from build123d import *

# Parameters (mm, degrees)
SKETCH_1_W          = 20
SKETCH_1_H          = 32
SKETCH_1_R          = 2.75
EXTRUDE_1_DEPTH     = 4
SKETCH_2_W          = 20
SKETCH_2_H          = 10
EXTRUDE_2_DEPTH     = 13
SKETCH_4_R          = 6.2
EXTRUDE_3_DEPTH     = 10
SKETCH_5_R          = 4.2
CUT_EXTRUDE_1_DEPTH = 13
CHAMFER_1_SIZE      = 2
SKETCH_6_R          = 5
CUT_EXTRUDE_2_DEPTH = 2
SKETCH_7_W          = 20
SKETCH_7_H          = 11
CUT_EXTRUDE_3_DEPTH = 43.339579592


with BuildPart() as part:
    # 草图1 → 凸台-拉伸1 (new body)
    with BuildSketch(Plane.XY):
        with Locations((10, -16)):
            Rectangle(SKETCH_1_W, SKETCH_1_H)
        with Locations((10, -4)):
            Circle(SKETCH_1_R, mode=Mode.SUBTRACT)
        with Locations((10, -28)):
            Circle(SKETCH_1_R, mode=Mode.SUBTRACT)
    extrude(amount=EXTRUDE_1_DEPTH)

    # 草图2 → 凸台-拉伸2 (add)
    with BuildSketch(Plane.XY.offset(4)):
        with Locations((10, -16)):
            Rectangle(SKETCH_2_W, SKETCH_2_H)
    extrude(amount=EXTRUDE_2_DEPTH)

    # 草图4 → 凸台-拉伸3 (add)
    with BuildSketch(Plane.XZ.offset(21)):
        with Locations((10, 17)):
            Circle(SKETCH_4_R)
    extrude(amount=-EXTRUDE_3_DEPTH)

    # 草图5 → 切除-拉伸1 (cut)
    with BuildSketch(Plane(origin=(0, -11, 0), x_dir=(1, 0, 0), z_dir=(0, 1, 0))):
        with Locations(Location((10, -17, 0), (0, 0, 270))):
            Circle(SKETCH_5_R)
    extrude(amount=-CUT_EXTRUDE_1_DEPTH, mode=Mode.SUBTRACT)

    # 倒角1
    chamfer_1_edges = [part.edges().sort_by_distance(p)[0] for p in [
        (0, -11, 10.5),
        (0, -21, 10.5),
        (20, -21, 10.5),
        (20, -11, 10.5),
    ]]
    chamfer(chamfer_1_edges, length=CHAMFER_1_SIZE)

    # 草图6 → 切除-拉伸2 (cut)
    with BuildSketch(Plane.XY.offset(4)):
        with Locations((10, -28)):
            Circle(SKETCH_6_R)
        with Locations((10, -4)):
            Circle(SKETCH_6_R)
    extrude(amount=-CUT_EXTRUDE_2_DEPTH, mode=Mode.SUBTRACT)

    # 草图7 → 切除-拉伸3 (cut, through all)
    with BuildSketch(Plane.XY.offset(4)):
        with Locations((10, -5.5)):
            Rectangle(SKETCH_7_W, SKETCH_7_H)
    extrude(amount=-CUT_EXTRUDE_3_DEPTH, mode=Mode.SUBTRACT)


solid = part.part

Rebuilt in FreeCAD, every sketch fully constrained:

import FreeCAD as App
import Part
import Sketcher
from FreeCAD import Vector


def edges_at(feature, points):
    """Names of the edges that pass closest to the given points."""
    edges = feature.Shape.Edges
    near = lambda p: min(range(len(edges)), key=lambda i: edges[i].distToShape(Part.Vertex(*p))[0])
    return sorted({f"Edge{near(p) + 1}" for p in points})

doc = App.newDocument("Part")
body = doc.addObject("PartDesign::Body", "Body")

# Sketch on XY plane
sketch1 = body.newObject("Sketcher::SketchObject", "Sketch")
sketch1.AttachmentSupport = (doc.getObject("XY_Plane"), [""])
sketch1.MapMode = "FlatFace"
sketch1.addGeometry(Part.LineSegment(Vector(0, 0, 0), Vector(0, -32, 0)), False)
sketch1.addGeometry(Part.LineSegment(Vector(0, -32, 0), Vector(20, -32, 0)), False)
sketch1.addGeometry(Part.LineSegment(Vector(20, -32, 0), Vector(20, 0, 0)), False)
sketch1.addGeometry(Part.LineSegment(Vector(20, 0, 0), Vector(0, 0, 0)), False)
sketch1.addGeometry(Part.Circle(Vector(10, -28, 0), Vector(0, 0, 1), 2.8), False)
sketch1.addGeometry(Part.Circle(Vector(10, -4, 0), Vector(0, 0, 1), 2.8), False)
sketch1.addConstraint(Sketcher.Constraint("Coincident", 0, 2, 1, 1))
sketch1.addConstraint(Sketcher.Constraint("Coincident", 1, 2, 2, 1))
sketch1.addConstraint(Sketcher.Constraint("Coincident", 2, 2, 3, 1))
sketch1.addConstraint(Sketcher.Constraint("Coincident", 3, 2, 0, 1))
sketch1.addConstraint(Sketcher.Constraint("Vertical", 0))
sketch1.addConstraint(Sketcher.Constraint("Horizontal", 1))
sketch1.addConstraint(Sketcher.Constraint("Vertical", 2))
sketch1.addConstraint(Sketcher.Constraint("Horizontal", 3))
sketch1.addConstraint(Sketcher.Constraint("Coincident", 3, 2, -1, 1))
sketch1.addConstraint(Sketcher.Constraint("Equal", 4, 5))
sketch1.addConstraint(Sketcher.Constraint("Vertical", 4, 3, 5, 3))
sketch1.addConstraint(Sketcher.Constraint("Diameter", 4, 5.5))
sketch1.addConstraint(Sketcher.Constraint("DistanceX", 1, 1, 1, 2, 20.0))
sketch1.addConstraint(Sketcher.Constraint("DistanceY", 0, 2, 0, 1, 32.0))
sketch1.addConstraint(Sketcher.Constraint("DistanceX", -1, 1, 4, 3, 10.0))
sketch1.addConstraint(Sketcher.Constraint("DistanceY", 4, 3, -1, 1, 28.0))
sketch1.addConstraint(Sketcher.Constraint("DistanceY", 5, 3, -1, 1, 4.0))
pad1 = body.newObject("PartDesign::Pad", "Pad")
pad1.Profile = sketch1
pad1.Length = 4

# Sketch on XY plane
sketch2 = body.newObject("Sketcher::SketchObject", "Sketch001")
sketch2.AttachmentSupport = (doc.getObject("XY_Plane"), [""])
sketch2.MapMode = "FlatFace"
sketch2.AttachmentOffset = App.Placement(Vector(0, 0, 4), App.Rotation())
sketch2.addGeometry(Part.LineSegment(Vector(0, -11, 0), Vector(0, -21, 0)), False)
sketch2.addGeometry(Part.LineSegment(Vector(0, -21, 0), Vector(20, -21, 0)), False)
sketch2.addGeometry(Part.LineSegment(Vector(20, -21, 0), Vector(20, -11, 0)), False)
sketch2.addGeometry(Part.LineSegment(Vector(20, -11, 0), Vector(0, -11, 0)), False)
sketch2.addConstraint(Sketcher.Constraint("Coincident", 0, 2, 1, 1))
sketch2.addConstraint(Sketcher.Constraint("Coincident", 1, 2, 2, 1))
sketch2.addConstraint(Sketcher.Constraint("Coincident", 2, 2, 3, 1))
sketch2.addConstraint(Sketcher.Constraint("Coincident", 3, 2, 0, 1))
sketch2.addConstraint(Sketcher.Constraint("Vertical", 0))
sketch2.addConstraint(Sketcher.Constraint("Horizontal", 1))
sketch2.addConstraint(Sketcher.Constraint("Vertical", 2))
sketch2.addConstraint(Sketcher.Constraint("Horizontal", 3))
sketch2.addConstraint(Sketcher.Constraint("PointOnObject", 0, 2, -2))
sketch2.addConstraint(Sketcher.Constraint("DistanceX", 1, 1, 1, 2, 20.0))
sketch2.addConstraint(Sketcher.Constraint("DistanceY", 0, 2, 0, 1, 10.0))
sketch2.addConstraint(Sketcher.Constraint("DistanceY", 0, 2, -1, 1, 21.0))
pad2 = body.newObject("PartDesign::Pad", "Pad001")
pad2.Profile = sketch2
pad2.Length = 13

# Sketch on XZ plane
sketch3 = body.newObject("Sketcher::SketchObject", "Sketch002")
sketch3.AttachmentSupport = (doc.getObject("XZ_Plane"), [""])
sketch3.MapMode = "FlatFace"
sketch3.AttachmentOffset = App.Placement(Vector(0, 0, 21), App.Rotation())
sketch3.addGeometry(Part.Circle(Vector(10, 17, 0), Vector(0, 0, 1), 6), False)
sketch3.addConstraint(Sketcher.Constraint("Diameter", 0, 12.4))
sketch3.addConstraint(Sketcher.Constraint("DistanceX", -1, 1, 0, 3, 10.0))
sketch3.addConstraint(Sketcher.Constraint("DistanceY", -1, 1, 0, 3, 17.0))
pad3 = body.newObject("PartDesign::Pad", "Pad002")
pad3.Profile = sketch3
pad3.Length = 10
pad3.Reversed = True

# Sketch on XZ plane
sketch4 = body.newObject("Sketcher::SketchObject", "Sketch003")
sketch4.AttachmentSupport = (doc.getObject("XZ_Plane"), [""])
sketch4.MapMode = "FlatFace"
sketch4.AttachmentOffset = App.Placement(Vector(0, 0, 11), App.Rotation())
sketch4.addGeometry(Part.Circle(Vector(10, 17, 0), Vector(0, 0, 1), 4.2), False)
sketch4.addConstraint(Sketcher.Constraint("Diameter", 0, 8.4))
sketch4.addConstraint(Sketcher.Constraint("DistanceX", -1, 1, 0, 3, 10.0))
sketch4.addConstraint(Sketcher.Constraint("DistanceY", -1, 1, 0, 3, 17.0))
pocket1 = body.newObject("PartDesign::Pocket", "Pocket")
pocket1.Profile = sketch4
pocket1.Length = 13
pocket1.Reversed = True
doc.recompute()

chamfer = body.newObject("PartDesign::Chamfer", "Chamfer")
chamfer.Base = (pocket1, edges_at(pocket1, [
    (0, -11, 10.5),
    (0, -21, 10.5),
    (20, -21, 10.5),
    (20, -11, 10.5),
]))
chamfer.Size = 2

# Sketch on XY plane
sketch5 = body.newObject("Sketcher::SketchObject", "Sketch004")
sketch5.AttachmentSupport = (doc.getObject("XY_Plane"), [""])
sketch5.MapMode = "FlatFace"
sketch5.AttachmentOffset = App.Placement(Vector(0, 0, 4), App.Rotation())
sketch5.addGeometry(Part.Circle(Vector(10, -28, 0), Vector(0, 0, 1), 5), False)
sketch5.addGeometry(Part.Circle(Vector(10, -4, 0), Vector(0, 0, 1), 5), False)
sketch5.addConstraint(Sketcher.Constraint("Equal", 0, 1))
sketch5.addConstraint(Sketcher.Constraint("Vertical", 0, 3, 1, 3))
sketch5.addConstraint(Sketcher.Constraint("Diameter", 0, 10.0))
sketch5.addConstraint(Sketcher.Constraint("DistanceX", -1, 1, 0, 3, 10.0))
sketch5.addConstraint(Sketcher.Constraint("DistanceY", 0, 3, -1, 1, 28.0))
sketch5.addConstraint(Sketcher.Constraint("DistanceY", 1, 3, -1, 1, 4.0))
pocket2 = body.newObject("PartDesign::Pocket", "Pocket001")
pocket2.Profile = sketch5
pocket2.Length = 2

# Sketch on XY plane
sketch6 = body.newObject("Sketcher::SketchObject", "Sketch005")
sketch6.AttachmentSupport = (doc.getObject("XY_Plane"), [""])
sketch6.MapMode = "FlatFace"
sketch6.AttachmentOffset = App.Placement(Vector(0, 0, 4), App.Rotation())
sketch6.addGeometry(Part.LineSegment(Vector(0, 0, 0), Vector(0, -11, 0)), False)
sketch6.addGeometry(Part.LineSegment(Vector(0, -11, 0), Vector(20, -11, 0)), False)
sketch6.addGeometry(Part.LineSegment(Vector(20, -11, 0), Vector(20, 0, 0)), False)
sketch6.addGeometry(Part.LineSegment(Vector(20, 0, 0), Vector(0, 0, 0)), False)
sketch6.addConstraint(Sketcher.Constraint("Coincident", 0, 2, 1, 1))
sketch6.addConstraint(Sketcher.Constraint("Coincident", 1, 2, 2, 1))
sketch6.addConstraint(Sketcher.Constraint("Coincident", 2, 2, 3, 1))
sketch6.addConstraint(Sketcher.Constraint("Coincident", 3, 2, 0, 1))
sketch6.addConstraint(Sketcher.Constraint("Vertical", 0))
sketch6.addConstraint(Sketcher.Constraint("Horizontal", 1))
sketch6.addConstraint(Sketcher.Constraint("Vertical", 2))
sketch6.addConstraint(Sketcher.Constraint("Horizontal", 3))
sketch6.addConstraint(Sketcher.Constraint("Coincident", 3, 2, -1, 1))
sketch6.addConstraint(Sketcher.Constraint("DistanceX", 1, 1, 1, 2, 20.0))
sketch6.addConstraint(Sketcher.Constraint("DistanceY", 0, 2, 0, 1, 11.0))
pocket3 = body.newObject("PartDesign::Pocket", "Pocket002")
pocket3.Profile = sketch6
pocket3.Type = "ThroughAll"

doc.recompute()
